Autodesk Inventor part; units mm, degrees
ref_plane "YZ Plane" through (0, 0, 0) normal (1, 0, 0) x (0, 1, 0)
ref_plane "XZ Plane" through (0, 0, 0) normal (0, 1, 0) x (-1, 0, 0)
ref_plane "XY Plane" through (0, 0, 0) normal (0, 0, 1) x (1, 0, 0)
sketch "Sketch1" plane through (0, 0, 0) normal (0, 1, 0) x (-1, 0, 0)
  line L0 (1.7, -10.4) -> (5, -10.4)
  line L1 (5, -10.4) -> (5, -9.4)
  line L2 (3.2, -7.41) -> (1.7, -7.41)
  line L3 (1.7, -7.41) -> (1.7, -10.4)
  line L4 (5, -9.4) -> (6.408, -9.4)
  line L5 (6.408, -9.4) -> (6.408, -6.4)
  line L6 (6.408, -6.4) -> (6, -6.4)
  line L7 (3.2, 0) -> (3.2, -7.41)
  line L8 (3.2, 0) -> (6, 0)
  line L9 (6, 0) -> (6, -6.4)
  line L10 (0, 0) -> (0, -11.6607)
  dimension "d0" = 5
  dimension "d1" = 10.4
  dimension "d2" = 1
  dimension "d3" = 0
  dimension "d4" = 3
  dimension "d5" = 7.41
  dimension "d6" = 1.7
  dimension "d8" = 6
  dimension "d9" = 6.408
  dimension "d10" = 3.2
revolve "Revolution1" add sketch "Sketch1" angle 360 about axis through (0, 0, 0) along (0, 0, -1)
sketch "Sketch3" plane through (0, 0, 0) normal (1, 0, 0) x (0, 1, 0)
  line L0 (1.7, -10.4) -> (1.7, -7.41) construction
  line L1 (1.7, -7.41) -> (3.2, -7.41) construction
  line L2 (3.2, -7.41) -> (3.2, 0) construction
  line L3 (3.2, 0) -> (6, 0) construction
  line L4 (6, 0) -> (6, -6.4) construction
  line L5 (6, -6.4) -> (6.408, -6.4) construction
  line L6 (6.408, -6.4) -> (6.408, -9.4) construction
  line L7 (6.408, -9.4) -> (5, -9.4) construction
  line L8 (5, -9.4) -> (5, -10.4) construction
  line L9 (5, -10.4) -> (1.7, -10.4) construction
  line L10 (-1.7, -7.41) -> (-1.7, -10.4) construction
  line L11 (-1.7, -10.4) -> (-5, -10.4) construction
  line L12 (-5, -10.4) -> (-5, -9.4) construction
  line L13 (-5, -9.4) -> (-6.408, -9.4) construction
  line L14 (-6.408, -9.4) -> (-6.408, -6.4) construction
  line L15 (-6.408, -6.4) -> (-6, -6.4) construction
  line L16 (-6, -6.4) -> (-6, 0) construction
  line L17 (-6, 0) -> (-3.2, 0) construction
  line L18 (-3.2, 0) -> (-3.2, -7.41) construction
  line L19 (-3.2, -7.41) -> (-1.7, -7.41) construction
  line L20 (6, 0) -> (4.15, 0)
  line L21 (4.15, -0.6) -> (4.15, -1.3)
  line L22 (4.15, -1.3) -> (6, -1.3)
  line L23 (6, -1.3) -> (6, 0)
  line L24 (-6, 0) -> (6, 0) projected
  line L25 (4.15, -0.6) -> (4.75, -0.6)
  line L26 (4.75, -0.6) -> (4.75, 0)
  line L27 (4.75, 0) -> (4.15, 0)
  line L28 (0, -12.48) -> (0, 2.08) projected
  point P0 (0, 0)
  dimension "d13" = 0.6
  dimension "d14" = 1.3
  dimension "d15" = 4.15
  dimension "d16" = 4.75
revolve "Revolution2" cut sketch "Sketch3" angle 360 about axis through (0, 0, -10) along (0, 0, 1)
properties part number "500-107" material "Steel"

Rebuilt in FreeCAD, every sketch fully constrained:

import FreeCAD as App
import Part
import Sketcher
from FreeCAD import Vector
Q = App.Units.Quantity


def add_polygon(sketch, points):
    """Adds a closed chain of lines whose ends are joined by coincident constraints."""
    first, n = sketch.GeometryCount, len(points)
    for a, b in zip(points, points[1:] + points[:1]):
        sketch.addGeometry(Part.LineSegment(App.Vector(*a, 0), App.Vector(*b, 0)), False)
    for i in range(n):
        sketch.addConstraint(Sketcher.Constraint("Coincident", first + i, 2, first + (i + 1) % n, 1))

doc = App.newDocument("Part")
body = doc.addObject("PartDesign::Body", "Body")

# Sketch on XZ plane
sketch1 = body.newObject("Sketcher::SketchObject", "Sketch")
sketch1.AttachmentSupport = (doc.getObject("XZ_Plane"), [""])
sketch1.MapMode = "FlatFace"
add_polygon(sketch1, [(-1.7, -7.41), (-1.7, -10.4), (-5, -10.4), (-5, -9.4), (-6.408, -9.4), (-6.408, -6.4), (-6, -6.4), (-6, 0), (-3.2, 0), (-3.2, -7.41)])  # lines 0-9
sketch1.addConstraint(Sketcher.Constraint("Vertical", 0))
sketch1.addConstraint(Sketcher.Constraint("Horizontal", 1))
sketch1.addConstraint(Sketcher.Constraint("Vertical", 2))
sketch1.addConstraint(Sketcher.Constraint("Horizontal", 3))
sketch1.addConstraint(Sketcher.Constraint("Vertical", 4))
sketch1.addConstraint(Sketcher.Constraint("Horizontal", 5))
sketch1.addConstraint(Sketcher.Constraint("Vertical", 6))
sketch1.addConstraint(Sketcher.Constraint("Horizontal", 7))
sketch1.addConstraint(Sketcher.Constraint("Vertical", 8))
sketch1.addConstraint(Sketcher.Constraint("Horizontal", 9))
sketch1.addConstraint(Sketcher.Constraint("PointOnObject", 6, 2, -1))
sketch1.addConstraint(Sketcher.Constraint("DistanceY", 2, 1, 2, 2, Q("1 mm")))
sketch1.addConstraint(Sketcher.Constraint("DistanceY", 4, 1, 4, 2, Q("3 mm")))
sketch1.addConstraint(Sketcher.Constraint("DistanceX", 1, 2, -1, 1, Q("5 mm")))
sketch1.addConstraint(Sketcher.Constraint("DistanceX", 5, 2, -1, 1, Q("6 mm")))
sketch1.addConstraint(Sketcher.Constraint("DistanceY", 8, 2, 8, 1, Q("7.41 mm")))
sketch1.addConstraint(Sketcher.Constraint("DistanceX", 0, 2, -1, 1, Q("1.7 mm")))
sketch1.addConstraint(Sketcher.Constraint("DistanceY", 0, 2, -1, 1, Q("10.4 mm")))
sketch1.addConstraint(Sketcher.Constraint("DistanceX", 7, 2, -1, 1, Q("3.2 mm")))
sketch1.addConstraint(Sketcher.Constraint("DistanceX", 3, 2, -1, 1, Q("6.408 mm")))
revolution = body.newObject("PartDesign::Revolution", "Revolution")
revolution.Profile = sketch1
revolution.ReferenceAxis = (sketch1, ["V_Axis"])
revolution.Angle = 360

# Sketch on YZ plane
sketch2 = body.newObject("Sketcher::SketchObject", "Sketch001")
sketch2.AttachmentSupport = (doc.getObject("YZ_Plane"), [""])
sketch2.MapMode = "FlatFace"
add_polygon(sketch2, [(6, -1.3), (6, 0), (4.75, 0), (4.75, -0.6), (4.15, -0.6), (4.15, -1.3)])  # lines 0-5
sketch2.addConstraint(Sketcher.Constraint("Vertical", 0))
sketch2.addConstraint(Sketcher.Constraint("Horizontal", 1))
sketch2.addConstraint(Sketcher.Constraint("Vertical", 2))
sketch2.addConstraint(Sketcher.Constraint("Horizontal", 3))
sketch2.addConstraint(Sketcher.Constraint("Vertical", 4))
sketch2.addConstraint(Sketcher.Constraint("Horizontal", 5))
sketch2.addConstraint(Sketcher.Constraint("PointOnObject", 0, 2, -1))
sketch2.addConstraint(Sketcher.Constraint("Equal", 3, 2))
sketch2.addConstraint(Sketcher.Constraint("DistanceX", 3, 2, 3, 1, Q("0.6 mm")))
sketch2.addConstraint(Sketcher.Constraint("DistanceY", 0, 1, 0, 2, Q("1.3 mm")))
sketch2.addConstraint(Sketcher.Constraint("DistanceX", -1, 1, 1, 2, Q("4.75 mm")))
sketch2.addConstraint(Sketcher.Constraint("DistanceX", -1, 1, 0, 2, Q("6 mm")))
groove = body.newObject("PartDesign::Groove", "Groove")
groove.Profile = sketch2
groove.ReferenceAxis = (sketch2, ["V_Axis"])
groove.Angle = 360

doc.recompute()
